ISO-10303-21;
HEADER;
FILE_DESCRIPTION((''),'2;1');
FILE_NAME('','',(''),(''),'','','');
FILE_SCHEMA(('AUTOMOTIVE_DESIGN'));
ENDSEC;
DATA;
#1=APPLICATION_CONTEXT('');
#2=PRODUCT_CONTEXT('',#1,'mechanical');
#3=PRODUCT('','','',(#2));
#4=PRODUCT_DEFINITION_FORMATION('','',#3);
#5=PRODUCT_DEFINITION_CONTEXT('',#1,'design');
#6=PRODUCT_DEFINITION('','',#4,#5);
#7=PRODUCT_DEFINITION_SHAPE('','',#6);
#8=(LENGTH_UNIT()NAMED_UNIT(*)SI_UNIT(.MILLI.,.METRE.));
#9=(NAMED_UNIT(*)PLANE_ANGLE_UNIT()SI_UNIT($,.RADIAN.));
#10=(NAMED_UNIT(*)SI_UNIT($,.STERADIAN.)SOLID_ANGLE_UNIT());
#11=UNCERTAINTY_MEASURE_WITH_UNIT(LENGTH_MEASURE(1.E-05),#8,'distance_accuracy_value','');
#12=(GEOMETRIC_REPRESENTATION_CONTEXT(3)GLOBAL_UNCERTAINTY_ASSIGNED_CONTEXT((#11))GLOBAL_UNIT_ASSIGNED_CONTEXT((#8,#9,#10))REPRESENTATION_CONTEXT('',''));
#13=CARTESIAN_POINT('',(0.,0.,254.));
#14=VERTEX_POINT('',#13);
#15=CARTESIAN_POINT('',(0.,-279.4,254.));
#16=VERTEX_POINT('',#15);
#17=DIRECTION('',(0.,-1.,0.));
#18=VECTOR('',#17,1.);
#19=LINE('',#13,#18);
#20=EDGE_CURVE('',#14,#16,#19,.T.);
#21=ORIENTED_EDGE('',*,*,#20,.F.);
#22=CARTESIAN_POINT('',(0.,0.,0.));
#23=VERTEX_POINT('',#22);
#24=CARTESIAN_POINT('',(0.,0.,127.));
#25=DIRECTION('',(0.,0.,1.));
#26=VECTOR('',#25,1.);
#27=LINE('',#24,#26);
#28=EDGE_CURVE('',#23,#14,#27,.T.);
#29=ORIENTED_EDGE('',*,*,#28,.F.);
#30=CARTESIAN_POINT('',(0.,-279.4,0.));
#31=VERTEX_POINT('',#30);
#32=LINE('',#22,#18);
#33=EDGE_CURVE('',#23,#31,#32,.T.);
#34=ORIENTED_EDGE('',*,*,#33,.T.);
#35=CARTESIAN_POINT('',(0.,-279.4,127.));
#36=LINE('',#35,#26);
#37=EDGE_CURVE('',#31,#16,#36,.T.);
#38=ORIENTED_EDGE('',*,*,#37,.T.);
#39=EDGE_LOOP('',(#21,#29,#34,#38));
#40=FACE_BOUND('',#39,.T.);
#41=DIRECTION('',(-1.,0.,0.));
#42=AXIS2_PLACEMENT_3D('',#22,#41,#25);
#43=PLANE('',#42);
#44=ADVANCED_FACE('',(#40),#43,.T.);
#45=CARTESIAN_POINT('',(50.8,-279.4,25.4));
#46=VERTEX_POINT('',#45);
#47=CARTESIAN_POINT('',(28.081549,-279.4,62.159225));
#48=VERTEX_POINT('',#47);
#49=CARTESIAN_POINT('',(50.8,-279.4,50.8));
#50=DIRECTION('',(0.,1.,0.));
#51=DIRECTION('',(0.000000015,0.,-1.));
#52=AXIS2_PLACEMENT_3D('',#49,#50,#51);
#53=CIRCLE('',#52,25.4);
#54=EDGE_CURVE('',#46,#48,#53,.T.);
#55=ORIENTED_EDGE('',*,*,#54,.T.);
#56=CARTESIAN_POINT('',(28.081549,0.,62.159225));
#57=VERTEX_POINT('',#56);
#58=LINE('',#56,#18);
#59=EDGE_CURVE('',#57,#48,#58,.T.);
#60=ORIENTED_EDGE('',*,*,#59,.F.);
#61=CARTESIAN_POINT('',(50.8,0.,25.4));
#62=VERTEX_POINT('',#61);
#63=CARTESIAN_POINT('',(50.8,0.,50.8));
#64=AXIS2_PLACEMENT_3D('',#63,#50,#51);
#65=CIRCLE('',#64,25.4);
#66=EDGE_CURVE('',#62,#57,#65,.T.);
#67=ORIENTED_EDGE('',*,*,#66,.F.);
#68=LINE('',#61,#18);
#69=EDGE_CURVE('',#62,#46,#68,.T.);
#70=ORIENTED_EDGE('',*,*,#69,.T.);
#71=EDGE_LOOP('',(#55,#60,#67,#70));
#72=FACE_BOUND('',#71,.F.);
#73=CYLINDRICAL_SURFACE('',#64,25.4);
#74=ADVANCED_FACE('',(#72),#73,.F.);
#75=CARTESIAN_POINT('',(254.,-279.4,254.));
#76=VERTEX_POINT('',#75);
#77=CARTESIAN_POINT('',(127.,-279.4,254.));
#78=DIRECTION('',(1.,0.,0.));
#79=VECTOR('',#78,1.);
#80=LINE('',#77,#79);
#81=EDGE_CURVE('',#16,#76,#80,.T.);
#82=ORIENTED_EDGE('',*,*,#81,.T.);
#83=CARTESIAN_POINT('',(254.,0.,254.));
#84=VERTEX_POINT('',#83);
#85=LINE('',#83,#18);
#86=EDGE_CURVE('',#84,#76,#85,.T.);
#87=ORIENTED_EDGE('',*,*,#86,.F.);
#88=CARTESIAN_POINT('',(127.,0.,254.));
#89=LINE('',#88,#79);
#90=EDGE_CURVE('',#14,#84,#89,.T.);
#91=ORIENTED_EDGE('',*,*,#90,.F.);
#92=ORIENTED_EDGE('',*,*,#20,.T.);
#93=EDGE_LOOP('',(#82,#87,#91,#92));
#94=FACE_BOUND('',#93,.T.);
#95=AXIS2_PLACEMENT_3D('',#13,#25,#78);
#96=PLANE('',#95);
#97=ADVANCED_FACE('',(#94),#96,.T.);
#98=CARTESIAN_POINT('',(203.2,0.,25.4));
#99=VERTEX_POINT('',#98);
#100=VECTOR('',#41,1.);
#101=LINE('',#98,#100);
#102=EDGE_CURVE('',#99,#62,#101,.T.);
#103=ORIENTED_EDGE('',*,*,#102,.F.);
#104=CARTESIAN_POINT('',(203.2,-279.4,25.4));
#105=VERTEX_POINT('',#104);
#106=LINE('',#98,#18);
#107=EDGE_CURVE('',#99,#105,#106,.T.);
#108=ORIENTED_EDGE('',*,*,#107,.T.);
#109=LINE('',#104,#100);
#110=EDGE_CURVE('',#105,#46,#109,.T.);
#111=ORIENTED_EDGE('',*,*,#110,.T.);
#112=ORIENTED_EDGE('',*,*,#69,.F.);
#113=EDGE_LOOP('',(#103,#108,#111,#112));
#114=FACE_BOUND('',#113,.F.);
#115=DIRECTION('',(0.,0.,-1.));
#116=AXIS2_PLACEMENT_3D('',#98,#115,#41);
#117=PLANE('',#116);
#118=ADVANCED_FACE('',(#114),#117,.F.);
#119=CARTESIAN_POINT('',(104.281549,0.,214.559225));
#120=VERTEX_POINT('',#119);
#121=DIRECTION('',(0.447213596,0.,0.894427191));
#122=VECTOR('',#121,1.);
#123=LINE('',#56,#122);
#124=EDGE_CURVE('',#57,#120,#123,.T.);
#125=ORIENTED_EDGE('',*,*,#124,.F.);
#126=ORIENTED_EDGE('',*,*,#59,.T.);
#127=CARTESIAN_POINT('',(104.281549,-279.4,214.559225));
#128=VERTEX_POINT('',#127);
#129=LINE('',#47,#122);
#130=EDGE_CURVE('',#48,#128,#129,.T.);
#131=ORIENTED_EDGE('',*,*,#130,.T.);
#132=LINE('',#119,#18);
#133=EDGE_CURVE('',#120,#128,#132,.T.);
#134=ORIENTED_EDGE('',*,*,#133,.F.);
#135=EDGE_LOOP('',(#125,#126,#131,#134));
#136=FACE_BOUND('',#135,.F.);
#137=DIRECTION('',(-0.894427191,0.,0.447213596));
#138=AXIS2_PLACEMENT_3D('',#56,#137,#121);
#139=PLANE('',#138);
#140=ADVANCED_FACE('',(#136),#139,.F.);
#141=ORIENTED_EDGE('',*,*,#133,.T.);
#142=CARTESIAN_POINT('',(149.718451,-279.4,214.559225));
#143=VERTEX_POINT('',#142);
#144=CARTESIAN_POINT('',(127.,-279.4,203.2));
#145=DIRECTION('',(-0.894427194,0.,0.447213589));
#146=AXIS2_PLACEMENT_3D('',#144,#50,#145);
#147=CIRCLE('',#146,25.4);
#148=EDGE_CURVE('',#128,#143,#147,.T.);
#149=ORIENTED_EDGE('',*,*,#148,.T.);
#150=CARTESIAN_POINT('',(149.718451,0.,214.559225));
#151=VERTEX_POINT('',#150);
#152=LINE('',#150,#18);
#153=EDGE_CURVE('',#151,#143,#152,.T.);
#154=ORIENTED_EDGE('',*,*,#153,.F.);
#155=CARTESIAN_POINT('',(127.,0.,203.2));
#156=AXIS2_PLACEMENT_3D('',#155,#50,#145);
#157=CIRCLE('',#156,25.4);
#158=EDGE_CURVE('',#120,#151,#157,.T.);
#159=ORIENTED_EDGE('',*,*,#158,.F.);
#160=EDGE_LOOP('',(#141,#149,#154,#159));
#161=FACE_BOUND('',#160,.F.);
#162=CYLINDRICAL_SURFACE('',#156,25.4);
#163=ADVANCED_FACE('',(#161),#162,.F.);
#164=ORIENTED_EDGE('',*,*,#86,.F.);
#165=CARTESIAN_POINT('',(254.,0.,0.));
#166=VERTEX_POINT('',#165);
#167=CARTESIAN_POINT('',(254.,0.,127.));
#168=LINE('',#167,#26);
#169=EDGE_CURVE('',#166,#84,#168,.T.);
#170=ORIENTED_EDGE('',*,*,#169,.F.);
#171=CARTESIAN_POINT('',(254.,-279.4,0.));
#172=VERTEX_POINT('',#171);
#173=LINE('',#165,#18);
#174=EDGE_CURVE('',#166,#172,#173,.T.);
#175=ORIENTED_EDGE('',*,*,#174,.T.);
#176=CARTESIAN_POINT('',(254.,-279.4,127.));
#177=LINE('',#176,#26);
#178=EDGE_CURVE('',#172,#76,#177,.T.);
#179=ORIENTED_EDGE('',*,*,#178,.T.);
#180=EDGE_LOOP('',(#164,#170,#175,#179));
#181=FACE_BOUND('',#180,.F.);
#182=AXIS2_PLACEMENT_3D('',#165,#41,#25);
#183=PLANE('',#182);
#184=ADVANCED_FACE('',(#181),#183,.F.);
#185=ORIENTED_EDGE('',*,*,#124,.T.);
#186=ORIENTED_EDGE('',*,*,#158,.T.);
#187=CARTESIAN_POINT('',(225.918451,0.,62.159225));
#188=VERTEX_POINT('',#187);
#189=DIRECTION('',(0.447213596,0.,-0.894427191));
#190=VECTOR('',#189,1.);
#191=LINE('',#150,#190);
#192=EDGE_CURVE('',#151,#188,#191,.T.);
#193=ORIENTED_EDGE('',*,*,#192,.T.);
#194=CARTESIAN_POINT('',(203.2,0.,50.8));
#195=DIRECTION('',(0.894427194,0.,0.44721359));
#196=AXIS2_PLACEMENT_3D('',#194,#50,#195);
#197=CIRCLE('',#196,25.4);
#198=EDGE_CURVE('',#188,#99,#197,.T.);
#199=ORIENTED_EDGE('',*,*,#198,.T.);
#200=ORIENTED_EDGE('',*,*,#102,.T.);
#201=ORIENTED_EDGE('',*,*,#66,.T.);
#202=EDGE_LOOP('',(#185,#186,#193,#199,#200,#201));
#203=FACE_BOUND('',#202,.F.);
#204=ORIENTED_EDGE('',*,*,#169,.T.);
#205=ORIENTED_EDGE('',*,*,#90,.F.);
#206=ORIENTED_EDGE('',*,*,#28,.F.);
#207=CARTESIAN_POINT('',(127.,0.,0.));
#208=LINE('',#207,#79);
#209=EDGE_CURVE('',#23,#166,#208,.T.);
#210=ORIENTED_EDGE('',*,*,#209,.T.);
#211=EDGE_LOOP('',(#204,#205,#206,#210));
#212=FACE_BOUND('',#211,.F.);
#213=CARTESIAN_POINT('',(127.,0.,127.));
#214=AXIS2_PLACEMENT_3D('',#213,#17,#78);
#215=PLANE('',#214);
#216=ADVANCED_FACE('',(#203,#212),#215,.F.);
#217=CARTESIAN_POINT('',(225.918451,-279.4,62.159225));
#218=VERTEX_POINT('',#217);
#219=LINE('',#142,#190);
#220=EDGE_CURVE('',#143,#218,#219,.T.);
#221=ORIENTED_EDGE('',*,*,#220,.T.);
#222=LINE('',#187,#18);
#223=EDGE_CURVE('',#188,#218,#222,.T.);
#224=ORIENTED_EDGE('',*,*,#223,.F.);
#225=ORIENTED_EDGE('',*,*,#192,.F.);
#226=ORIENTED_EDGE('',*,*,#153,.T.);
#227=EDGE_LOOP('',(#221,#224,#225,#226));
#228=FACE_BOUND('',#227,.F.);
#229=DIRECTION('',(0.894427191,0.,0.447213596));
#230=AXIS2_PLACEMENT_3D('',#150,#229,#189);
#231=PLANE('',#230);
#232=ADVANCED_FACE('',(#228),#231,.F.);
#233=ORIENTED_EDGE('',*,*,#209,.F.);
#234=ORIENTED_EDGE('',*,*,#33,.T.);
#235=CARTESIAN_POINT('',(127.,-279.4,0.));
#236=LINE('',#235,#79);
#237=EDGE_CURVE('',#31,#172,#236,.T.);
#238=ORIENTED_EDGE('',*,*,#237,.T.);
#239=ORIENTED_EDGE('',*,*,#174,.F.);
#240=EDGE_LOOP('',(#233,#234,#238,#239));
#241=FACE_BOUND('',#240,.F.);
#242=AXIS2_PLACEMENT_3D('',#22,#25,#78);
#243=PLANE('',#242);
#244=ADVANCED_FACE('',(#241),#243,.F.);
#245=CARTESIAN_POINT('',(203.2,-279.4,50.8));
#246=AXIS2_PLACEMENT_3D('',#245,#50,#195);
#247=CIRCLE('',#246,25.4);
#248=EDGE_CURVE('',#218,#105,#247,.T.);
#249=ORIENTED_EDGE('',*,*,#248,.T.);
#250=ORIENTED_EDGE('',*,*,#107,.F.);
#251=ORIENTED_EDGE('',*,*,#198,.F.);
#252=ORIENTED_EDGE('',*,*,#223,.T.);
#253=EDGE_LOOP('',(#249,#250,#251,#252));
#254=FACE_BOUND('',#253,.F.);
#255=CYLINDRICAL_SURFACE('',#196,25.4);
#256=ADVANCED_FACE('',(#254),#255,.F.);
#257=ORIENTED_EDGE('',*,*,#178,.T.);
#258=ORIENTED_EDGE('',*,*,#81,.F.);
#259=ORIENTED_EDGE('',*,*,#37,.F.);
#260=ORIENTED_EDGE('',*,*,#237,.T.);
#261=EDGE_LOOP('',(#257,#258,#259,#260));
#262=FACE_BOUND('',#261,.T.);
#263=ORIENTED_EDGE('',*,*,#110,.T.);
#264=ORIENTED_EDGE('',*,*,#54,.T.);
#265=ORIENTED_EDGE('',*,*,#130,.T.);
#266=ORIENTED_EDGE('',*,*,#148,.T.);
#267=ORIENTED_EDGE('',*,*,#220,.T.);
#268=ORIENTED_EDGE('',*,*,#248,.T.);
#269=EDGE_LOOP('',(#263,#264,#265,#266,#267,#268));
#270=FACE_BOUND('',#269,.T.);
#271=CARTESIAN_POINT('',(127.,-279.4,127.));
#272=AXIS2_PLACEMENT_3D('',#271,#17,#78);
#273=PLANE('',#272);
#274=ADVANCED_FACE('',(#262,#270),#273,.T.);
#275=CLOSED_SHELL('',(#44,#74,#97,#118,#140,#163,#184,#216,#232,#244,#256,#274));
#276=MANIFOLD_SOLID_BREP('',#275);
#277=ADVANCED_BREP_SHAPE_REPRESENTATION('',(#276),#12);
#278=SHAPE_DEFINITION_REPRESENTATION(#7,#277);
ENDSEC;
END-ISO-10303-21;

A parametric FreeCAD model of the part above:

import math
import FreeCAD as App
import Part
import Sketcher
Q = App.Units.Quantity


def add_polygon(sketch, points):
    """Adds a closed chain of lines whose ends are joined by coincident constraints."""
    first, n = sketch.GeometryCount, len(points)
    for a, b in zip(points, points[1:] + points[:1]):
        sketch.addGeometry(Part.LineSegment(App.Vector(*a, 0), App.Vector(*b, 0)), False)
    for i in range(n):
        sketch.addConstraint(Sketcher.Constraint("Coincident", first + i, 2, first + (i + 1) % n, 1))

doc = App.newDocument("Part")
body = doc.addObject("PartDesign::Body", "Body")

# Sketch on XZ plane
sketch1 = body.newObject("Sketcher::SketchObject", "Sketch")
sketch1.AttachmentSupport = (doc.getObject("XZ_Plane"), [""])
sketch1.MapMode = "FlatFace"
add_polygon(sketch1, [(0, 254), (0, 0), (254, 0), (254, 254)])  # lines 0-3
sketch1.addGeometry(Part.LineSegment(App.Vector(203.2, 25.4, 0), App.Vector(50.8, 25.4, 0)), False)  # 4
sketch1.addGeometry(Part.ArcOfCircle(Part.Circle(App.Vector(50.8, 50.8, 0), App.Vector(0, 0, 1), 25.4), math.radians(153.434949), math.radians(270.000001)), False)  # 5
sketch1.addGeometry(Part.LineSegment(App.Vector(28.081549, 62.159225, 0), App.Vector(104.281549, 214.559225, 0)), False)  # 6
sketch1.addGeometry(Part.ArcOfCircle(Part.Circle(App.Vector(127, 203.2, 0), App.Vector(0, 0, 1), 25.4), math.radians(26.565051), math.radians(153.434949)), False)  # 7
sketch1.addGeometry(Part.LineSegment(App.Vector(149.718451, 214.559225, 0), App.Vector(225.918451, 62.159225, 0)), False)  # 8
sketch1.addGeometry(Part.ArcOfCircle(Part.Circle(App.Vector(203.2, 50.8, 0), App.Vector(0, 0, 1), 25.4), math.radians(-90.000001), math.radians(26.565051)), False)  # 9
sketch1.addConstraint([
    Sketcher.Constraint("Tangent", 4, 2, 5, 2),
    Sketcher.Constraint("Tangent", 5, 1, 6, 1),
    Sketcher.Constraint("Tangent", 6, 2, 7, 2),
    Sketcher.Constraint("Tangent", 7, 1, 8, 1),
    Sketcher.Constraint("Tangent", 8, 2, 9, 2),
    Sketcher.Constraint("Tangent", 9, 1, 4, 1),
    Sketcher.Constraint("Vertical", 0),
    Sketcher.Constraint("Horizontal", 1),
    Sketcher.Constraint("Vertical", 2),
    Sketcher.Constraint("Horizontal", 3),
    Sketcher.Constraint("Horizontal", 4),
    Sketcher.Constraint("Coincident", 0, 2, -1, 1),
    Sketcher.Constraint("Equal", 5, 7),
    Sketcher.Constraint("Equal", 7, 9),
    Sketcher.Constraint("Horizontal", 6, 2, 7, 1),
    Sketcher.Constraint("Equal", 3, 0),
    Sketcher.Constraint("Radius", 5, Q("1 in")),
    Sketcher.Constraint("DistanceX", 1, 1, 1, 2, Q("10 in")),
    Sketcher.Constraint("DistanceX", 4, 2, 4, 1, Q("6 in")),
    Sketcher.Constraint("DistanceX", -1, 1, 5, 3, Q("2 in")),
    Sketcher.Constraint("DistanceY", -1, 1, 5, 3, Q("2 in")),
    Sketcher.Constraint("DistanceY", -1, 1, 7, 3, Q("8 in")),
])
pad1 = body.newObject("PartDesign::Pad", "Pad")
pad1.Profile = sketch1
pad1.Length = Q("11 in")

doc.recompute()
